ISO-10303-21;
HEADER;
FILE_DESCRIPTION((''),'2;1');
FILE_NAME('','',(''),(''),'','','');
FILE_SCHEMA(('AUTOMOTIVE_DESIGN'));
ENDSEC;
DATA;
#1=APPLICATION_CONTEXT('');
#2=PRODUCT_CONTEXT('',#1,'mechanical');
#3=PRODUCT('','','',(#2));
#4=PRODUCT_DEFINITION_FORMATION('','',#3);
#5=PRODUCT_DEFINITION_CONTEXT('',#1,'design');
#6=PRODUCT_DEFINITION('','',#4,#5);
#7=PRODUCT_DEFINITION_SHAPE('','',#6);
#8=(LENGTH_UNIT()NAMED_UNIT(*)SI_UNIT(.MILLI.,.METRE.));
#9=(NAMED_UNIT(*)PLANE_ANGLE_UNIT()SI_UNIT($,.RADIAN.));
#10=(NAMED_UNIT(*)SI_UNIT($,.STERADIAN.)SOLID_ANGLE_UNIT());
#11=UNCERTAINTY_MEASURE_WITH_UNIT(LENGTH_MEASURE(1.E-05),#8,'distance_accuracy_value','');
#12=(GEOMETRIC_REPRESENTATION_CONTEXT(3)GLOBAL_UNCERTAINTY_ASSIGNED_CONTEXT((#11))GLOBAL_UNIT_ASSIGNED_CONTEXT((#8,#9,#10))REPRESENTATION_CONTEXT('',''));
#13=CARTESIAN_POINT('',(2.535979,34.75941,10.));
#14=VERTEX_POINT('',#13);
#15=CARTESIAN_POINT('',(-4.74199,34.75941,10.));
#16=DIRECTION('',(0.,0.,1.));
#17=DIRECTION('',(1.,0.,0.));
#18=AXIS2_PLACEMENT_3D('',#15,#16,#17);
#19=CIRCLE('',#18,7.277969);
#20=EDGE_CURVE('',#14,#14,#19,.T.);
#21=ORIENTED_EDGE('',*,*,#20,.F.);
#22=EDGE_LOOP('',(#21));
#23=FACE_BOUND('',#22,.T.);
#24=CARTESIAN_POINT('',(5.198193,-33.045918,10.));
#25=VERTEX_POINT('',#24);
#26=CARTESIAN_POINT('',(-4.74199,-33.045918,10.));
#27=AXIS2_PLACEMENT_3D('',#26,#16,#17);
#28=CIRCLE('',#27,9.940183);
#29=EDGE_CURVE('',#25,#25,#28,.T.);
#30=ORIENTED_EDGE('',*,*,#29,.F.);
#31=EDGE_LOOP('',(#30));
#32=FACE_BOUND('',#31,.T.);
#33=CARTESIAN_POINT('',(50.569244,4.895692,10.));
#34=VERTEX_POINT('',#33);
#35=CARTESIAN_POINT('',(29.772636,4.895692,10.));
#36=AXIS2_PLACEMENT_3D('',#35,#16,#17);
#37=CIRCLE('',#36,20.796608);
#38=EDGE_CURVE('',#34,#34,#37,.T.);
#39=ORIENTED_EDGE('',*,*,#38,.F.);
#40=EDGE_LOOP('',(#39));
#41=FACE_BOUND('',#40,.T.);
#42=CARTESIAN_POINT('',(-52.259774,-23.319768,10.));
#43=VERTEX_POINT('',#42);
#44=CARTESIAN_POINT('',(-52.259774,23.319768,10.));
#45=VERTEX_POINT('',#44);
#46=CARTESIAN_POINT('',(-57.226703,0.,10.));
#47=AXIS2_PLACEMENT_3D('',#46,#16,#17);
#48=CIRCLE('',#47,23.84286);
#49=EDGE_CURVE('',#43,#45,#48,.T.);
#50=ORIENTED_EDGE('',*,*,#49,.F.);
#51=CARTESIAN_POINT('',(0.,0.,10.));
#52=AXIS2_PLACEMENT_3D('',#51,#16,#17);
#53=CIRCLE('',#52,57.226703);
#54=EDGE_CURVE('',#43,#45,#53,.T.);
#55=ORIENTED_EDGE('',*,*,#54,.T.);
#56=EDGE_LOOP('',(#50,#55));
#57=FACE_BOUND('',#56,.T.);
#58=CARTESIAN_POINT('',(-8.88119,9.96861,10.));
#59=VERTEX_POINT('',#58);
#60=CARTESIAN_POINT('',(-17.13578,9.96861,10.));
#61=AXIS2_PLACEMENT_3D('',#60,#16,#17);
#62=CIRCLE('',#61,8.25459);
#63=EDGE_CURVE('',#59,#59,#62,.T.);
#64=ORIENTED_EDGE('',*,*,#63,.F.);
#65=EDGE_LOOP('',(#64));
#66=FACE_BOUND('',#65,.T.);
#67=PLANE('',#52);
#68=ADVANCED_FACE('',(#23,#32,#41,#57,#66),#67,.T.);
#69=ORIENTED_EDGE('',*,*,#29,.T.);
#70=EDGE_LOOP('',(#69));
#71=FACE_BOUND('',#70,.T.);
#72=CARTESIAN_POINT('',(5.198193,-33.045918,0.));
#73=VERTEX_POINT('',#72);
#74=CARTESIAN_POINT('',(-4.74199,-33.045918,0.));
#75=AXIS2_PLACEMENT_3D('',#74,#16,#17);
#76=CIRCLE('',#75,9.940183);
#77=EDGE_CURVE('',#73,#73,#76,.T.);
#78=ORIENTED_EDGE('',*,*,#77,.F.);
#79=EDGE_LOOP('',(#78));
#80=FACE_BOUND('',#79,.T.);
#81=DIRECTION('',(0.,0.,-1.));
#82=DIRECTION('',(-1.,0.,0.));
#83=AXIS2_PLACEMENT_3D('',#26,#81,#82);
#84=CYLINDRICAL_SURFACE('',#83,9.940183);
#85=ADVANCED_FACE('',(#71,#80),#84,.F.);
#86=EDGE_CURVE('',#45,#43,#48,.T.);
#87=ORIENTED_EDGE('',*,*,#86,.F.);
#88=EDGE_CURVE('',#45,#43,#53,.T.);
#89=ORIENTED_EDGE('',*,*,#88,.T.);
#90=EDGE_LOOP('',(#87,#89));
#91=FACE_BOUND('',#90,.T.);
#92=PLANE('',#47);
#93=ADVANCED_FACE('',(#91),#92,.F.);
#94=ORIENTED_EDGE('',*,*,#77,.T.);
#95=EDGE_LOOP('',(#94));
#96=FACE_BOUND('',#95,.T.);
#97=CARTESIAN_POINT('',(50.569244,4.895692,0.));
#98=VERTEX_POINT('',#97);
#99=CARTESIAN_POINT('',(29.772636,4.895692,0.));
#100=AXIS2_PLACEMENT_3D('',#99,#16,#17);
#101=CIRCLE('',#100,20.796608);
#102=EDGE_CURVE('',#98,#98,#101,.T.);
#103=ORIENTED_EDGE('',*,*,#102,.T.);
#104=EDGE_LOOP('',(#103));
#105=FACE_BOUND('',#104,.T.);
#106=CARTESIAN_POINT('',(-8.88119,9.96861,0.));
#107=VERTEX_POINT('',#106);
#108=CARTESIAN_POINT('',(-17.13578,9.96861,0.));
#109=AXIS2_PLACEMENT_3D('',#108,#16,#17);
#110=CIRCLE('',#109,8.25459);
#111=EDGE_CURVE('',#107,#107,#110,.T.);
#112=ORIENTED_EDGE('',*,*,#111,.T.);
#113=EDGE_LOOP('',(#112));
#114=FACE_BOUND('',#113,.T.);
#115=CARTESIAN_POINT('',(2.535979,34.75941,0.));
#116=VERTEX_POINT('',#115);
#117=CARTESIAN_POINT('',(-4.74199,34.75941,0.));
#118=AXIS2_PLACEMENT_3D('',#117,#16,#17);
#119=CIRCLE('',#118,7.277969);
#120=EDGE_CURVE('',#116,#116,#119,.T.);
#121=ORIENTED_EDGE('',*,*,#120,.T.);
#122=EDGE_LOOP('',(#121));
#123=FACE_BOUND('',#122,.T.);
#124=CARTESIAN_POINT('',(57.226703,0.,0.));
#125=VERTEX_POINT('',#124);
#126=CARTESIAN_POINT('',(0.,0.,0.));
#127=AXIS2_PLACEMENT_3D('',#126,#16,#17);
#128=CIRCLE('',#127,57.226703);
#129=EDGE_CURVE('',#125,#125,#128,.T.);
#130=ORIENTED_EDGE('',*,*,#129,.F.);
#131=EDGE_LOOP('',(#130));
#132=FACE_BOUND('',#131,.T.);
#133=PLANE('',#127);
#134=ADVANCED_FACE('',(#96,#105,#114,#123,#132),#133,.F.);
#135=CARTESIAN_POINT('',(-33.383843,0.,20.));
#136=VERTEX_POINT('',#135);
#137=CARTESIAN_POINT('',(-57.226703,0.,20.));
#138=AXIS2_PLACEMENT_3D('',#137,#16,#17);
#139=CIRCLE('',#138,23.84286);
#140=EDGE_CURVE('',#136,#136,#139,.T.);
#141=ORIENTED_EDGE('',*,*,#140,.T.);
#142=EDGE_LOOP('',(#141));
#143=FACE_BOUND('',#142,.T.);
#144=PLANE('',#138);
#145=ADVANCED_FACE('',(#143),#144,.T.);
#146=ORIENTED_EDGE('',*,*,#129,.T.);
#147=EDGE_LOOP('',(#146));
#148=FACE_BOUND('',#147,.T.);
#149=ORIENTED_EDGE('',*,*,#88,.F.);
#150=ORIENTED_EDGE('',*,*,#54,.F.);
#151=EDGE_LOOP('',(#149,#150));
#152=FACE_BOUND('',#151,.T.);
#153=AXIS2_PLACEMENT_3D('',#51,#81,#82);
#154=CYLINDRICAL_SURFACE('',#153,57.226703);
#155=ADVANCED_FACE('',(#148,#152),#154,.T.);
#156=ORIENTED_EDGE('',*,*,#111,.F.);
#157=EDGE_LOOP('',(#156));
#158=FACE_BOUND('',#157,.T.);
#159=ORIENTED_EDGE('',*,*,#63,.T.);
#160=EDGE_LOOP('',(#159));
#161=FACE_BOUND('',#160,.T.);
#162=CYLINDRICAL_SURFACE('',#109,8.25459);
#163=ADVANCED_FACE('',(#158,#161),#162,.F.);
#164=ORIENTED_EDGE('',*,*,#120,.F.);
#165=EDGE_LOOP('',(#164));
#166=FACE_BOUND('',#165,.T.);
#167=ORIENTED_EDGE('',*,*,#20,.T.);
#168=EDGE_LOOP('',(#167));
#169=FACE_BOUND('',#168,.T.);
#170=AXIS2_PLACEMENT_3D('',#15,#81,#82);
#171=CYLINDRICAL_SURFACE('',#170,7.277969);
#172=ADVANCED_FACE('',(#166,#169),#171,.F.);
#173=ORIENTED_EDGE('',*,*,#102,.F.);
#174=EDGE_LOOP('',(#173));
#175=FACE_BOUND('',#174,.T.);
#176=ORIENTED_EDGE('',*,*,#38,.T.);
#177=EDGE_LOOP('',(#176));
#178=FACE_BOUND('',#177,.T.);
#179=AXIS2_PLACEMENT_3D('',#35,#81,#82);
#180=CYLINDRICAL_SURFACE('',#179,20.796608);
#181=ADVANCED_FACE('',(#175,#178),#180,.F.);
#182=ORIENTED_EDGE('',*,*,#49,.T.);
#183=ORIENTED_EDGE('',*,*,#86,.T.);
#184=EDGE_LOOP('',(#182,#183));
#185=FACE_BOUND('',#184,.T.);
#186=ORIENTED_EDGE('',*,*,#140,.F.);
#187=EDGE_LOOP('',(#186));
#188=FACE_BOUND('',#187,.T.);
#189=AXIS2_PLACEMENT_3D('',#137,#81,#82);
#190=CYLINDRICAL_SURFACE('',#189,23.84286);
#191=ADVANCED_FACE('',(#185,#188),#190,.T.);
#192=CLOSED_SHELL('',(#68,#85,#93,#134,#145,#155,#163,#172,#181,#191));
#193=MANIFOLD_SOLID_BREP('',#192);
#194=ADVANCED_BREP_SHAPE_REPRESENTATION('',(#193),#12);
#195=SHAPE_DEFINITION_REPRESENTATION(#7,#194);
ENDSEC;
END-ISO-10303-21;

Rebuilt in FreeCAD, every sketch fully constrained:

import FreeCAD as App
import Part
import Sketcher
from FreeCAD import Vector

doc = App.newDocument("Part")
body = doc.addObject("PartDesign::Body", "Body")

# Sketch on XY plane
sketch1 = body.newObject("Sketcher::SketchObject", "Sketch")
sketch1.AttachmentSupport = (doc.getObject("XY_Plane"), [""])
sketch1.MapMode = "FlatFace"
sketch1.addGeometry([
    Part.Circle(Vector(0, 0, 0), Vector(0, 0, 1), 57),
    Part.Circle(Vector(-5, -33, 0), Vector(0, 0, 1), 10),
    Part.Circle(Vector(-5, 35, 0), Vector(0, 0, 1), 7),
    Part.Circle(Vector(30, 5, 0), Vector(0, 0, 1), 21),
], False)
sketch1.addConstraint([
    Sketcher.Constraint("Coincident", 0, 3, -1, 1),
    Sketcher.Constraint("Vertical", 1, 3, 2, 3),
    Sketcher.Constraint("Diameter", 0, 114.453406),
    Sketcher.Constraint("Diameter", 1, 19.880366),
    Sketcher.Constraint("Diameter", 2, 14.555938),
    Sketcher.Constraint("Diameter", 3, 41.593215),
    Sketcher.Constraint("DistanceX", 1, 3, -1, 1, 4.74199),
    Sketcher.Constraint("DistanceY", 1, 3, -1, 1, 33.045918),
    Sketcher.Constraint("DistanceY", -1, 1, 2, 3, 34.75941),
    Sketcher.Constraint("DistanceY", -1, 1, 3, 3, 4.895692),
    Sketcher.Constraint("DistanceX", -1, 1, 3, 3, 29.772636),
])
pad1 = body.newObject("PartDesign::Pad", "Pad")
pad1.Profile = sketch1
pad1.Length = 10

# Sketch on XY plane
sketch2 = body.newObject("Sketcher::SketchObject", "Sketch001")
sketch2.AttachmentSupport = (doc.getObject("XY_Plane"), [""])
sketch2.MapMode = "FlatFace"
sketch2.AttachmentOffset = App.Placement(Vector(0, 0, 10), App.Rotation())
sketch2.addGeometry(Part.Circle(Vector(-57, 0, 0), Vector(0, 0, 1), 24), False)
sketch2.addConstraint([
    Sketcher.Constraint("PointOnObject", 0, 3, -1),
    Sketcher.Constraint("Diameter", 0, 47.685719),
    Sketcher.Constraint("DistanceX", 0, 3, -1, 1, 57.226703),
])
pad2 = body.newObject("PartDesign::Pad", "Pad001")
pad2.Profile = sketch2
pad2.Length = 10

# Sketch on XY plane
sketch3 = body.newObject("Sketcher::SketchObject", "Sketch002")
sketch3.AttachmentSupport = (doc.getObject("XY_Plane"), [""])
sketch3.MapMode = "FlatFace"
sketch3.AttachmentOffset = App.Placement(Vector(0, 0, 10), App.Rotation())
sketch3.addGeometry(Part.Circle(Vector(-17, 10, 0), Vector(0, 0, 1), 8), False)
sketch3.addConstraint([
    Sketcher.Constraint("Diameter", 0, 16.50918),
    Sketcher.Constraint("DistanceX", 0, 3, -1, 1, 17.13578),
    Sketcher.Constraint("DistanceY", -1, 1, 0, 3, 9.96861),
])
pocket1 = body.newObject("PartDesign::Pocket", "Pocket")
pocket1.Profile = sketch3
pocket1.Length = 10

doc.recompute()
